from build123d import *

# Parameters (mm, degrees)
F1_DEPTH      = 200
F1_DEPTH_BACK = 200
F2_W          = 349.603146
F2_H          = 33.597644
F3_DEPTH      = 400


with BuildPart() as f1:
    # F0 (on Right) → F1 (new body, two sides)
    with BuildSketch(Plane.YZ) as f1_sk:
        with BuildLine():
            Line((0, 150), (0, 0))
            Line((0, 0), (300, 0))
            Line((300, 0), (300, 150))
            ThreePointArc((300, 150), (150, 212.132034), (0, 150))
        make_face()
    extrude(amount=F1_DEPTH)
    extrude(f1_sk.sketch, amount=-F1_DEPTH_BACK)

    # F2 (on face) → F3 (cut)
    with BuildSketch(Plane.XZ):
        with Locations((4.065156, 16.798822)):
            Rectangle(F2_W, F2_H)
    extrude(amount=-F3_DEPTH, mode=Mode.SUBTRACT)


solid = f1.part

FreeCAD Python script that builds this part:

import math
import FreeCAD as App
import Part
import Sketcher
from FreeCAD import Vector
Q = App.Units.Quantity

doc = App.newDocument("Part")
params = doc.addObject("Spreadsheet::Sheet", "Params")
for row, (alias, value) in enumerate([
    ("sketch1_width", "300 mm"),
    ("sketch1_height", "150 mm"),
    ("pad1_length", "200 mm"),
    ("pad1_length2", "200 mm"),
    ("pocket1_length", "400 mm"),
], start=1):
    params.set(f"A{row}", alias)
    params.set(f"B{row}", "=" + value)
    params.setAlias(f"B{row}", alias)

body = doc.addObject("PartDesign::Body", "Body")

# Sketch on YZ plane
sketch1 = body.newObject("Sketcher::SketchObject", "Sketch")
sketch1.AttachmentSupport = (doc.getObject("YZ_Plane"), [""])
sketch1.MapMode = "FlatFace"
sketch1.addGeometry(Part.LineSegment(Vector(0, 150, 0), Vector(0, 0, 0)), False)
sketch1.addGeometry(Part.LineSegment(Vector(0, 0, 0), Vector(300, 0, 0)), False)
sketch1.addGeometry(Part.LineSegment(Vector(300, 0, 0), Vector(300, 150, 0)), False)
sketch1.addGeometry(Part.ArcOfCircle(Part.Circle(Vector(150, -0.000001, 0), Vector(0, 0, 1), 212.132035), math.radians(45), math.radians(135)), False)
sketch1.addConstraint(Sketcher.Constraint("Coincident", 0, 2, 1, 1))
sketch1.addConstraint(Sketcher.Constraint("Coincident", 1, 2, 2, 1))
sketch1.addConstraint(Sketcher.Constraint("Coincident", 2, 2, 3, 1))
sketch1.addConstraint(Sketcher.Constraint("Coincident", 3, 2, 0, 1))
sketch1.addConstraint(Sketcher.Constraint("Vertical", 0))
sketch1.addConstraint(Sketcher.Constraint("Horizontal", 1))
sketch1.addConstraint(Sketcher.Constraint("Vertical", 2))
sketch1.addConstraint(Sketcher.Constraint("Coincident", 0, 2, -1, 1))
sketch1.addConstraint(Sketcher.Constraint("PointOnObject", 3, 3, -1))
sketch1.addConstraint(Sketcher.Constraint("Horizontal", 2, 2, 3, 2))
sketch1.addConstraint(Sketcher.Constraint("DistanceX", 1, 1, 1, 2, Q("300 mm")))
sketch1.addConstraint(Sketcher.Constraint("DistanceY", 0, 2, 0, 1, Q("150 mm")))
sketch1.setExpression("Constraints[10]", "Params.sketch1_width")
sketch1.setExpression("Constraints[11]", "Params.sketch1_height")
pad1 = body.newObject("PartDesign::Pad", "Pad")
pad1.Profile = sketch1
pad1.Type = "TwoLengths"
pad1.setExpression("Length", "Params.pad1_length")
pad1.setExpression("Length2", "Params.pad1_length2")

# Sketch on XZ plane
sketch2 = body.newObject("Sketcher::SketchObject", "Sketch001")
sketch2.AttachmentSupport = (doc.getObject("XZ_Plane"), [""])
sketch2.MapMode = "FlatFace"
sketch2.addGeometry(Part.LineSegment(Vector(-170.736417, 33.597644, 0), Vector(-170.736417, 0, 0)), False)
sketch2.addGeometry(Part.LineSegment(Vector(-170.736417, 0, 0), Vector(178.866729, 0, 0)), False)
sketch2.addGeometry(Part.LineSegment(Vector(178.866729, 0, 0), Vector(178.866729, 33.597644, 0)), False)
sketch2.addGeometry(Part.LineSegment(Vector(178.866729, 33.597644, 0), Vector(-170.736417, 33.597644, 0)), False)
sketch2.addConstraint(Sketcher.Constraint("Coincident", 0, 2, 1, 1))
sketch2.addConstraint(Sketcher.Constraint("Coincident", 1, 2, 2, 1))
sketch2.addConstraint(Sketcher.Constraint("Coincident", 2, 2, 3, 1))
sketch2.addConstraint(Sketcher.Constraint("Coincident", 3, 2, 0, 1))
sketch2.addConstraint(Sketcher.Constraint("Vertical", 0))
sketch2.addConstraint(Sketcher.Constraint("Horizontal", 1))
sketch2.addConstraint(Sketcher.Constraint("Vertical", 2))
sketch2.addConstraint(Sketcher.Constraint("Horizontal", 3))
sketch2.addConstraint(Sketcher.Constraint("PointOnObject", 0, 2, -1))
sketch2.addConstraint(Sketcher.Constraint("DistanceX", 1, 1, 1, 2, Q("349.603146 mm")))
sketch2.addConstraint(Sketcher.Constraint("DistanceY", 0, 2, 0, 1, Q("33.597644 mm")))
sketch2.addConstraint(Sketcher.Constraint("DistanceX", -1, 1, 1, 2, Q("178.866729 mm")))
pocket1 = body.newObject("PartDesign::Pocket", "Pocket")
pocket1.Profile = sketch2
pocket1.setExpression("Length", "Params.pocket1_length")

doc.recompute()
